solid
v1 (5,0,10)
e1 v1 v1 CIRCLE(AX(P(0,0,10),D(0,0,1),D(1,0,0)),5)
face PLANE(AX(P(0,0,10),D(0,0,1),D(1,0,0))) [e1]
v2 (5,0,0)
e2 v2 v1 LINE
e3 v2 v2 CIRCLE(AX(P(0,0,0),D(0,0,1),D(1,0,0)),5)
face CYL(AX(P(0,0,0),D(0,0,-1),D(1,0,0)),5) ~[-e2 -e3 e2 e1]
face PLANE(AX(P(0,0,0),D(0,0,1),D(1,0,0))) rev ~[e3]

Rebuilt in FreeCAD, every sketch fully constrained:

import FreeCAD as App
import Part
import Sketcher
Q = App.Units.Quantity

doc = App.newDocument("Part")
params = doc.addObject("Spreadsheet::Sheet", "Params")
for row, (alias, value) in enumerate([
    ("sketch1_diameter", "10 mm"),
    ("pad1_length", "10 mm"),
], start=1):
    params.set(f"A{row}", alias)
    params.set(f"B{row}", "=" + value)
    params.setAlias(f"B{row}", alias)

body = doc.addObject("PartDesign::Body", "Body")

# Sketch on XY plane
sketch1 = body.newObject("Sketcher::SketchObject", "Sketch")
sketch1.AttachmentSupport = (doc.getObject("XY_Plane"), [""])
sketch1.MapMode = "FlatFace"
sketch1.addGeometry(Part.Circle(App.Vector(0, 0, 0), App.Vector(0, 0, 1), 5), False)
sketch1.addConstraint([
    Sketcher.Constraint("Coincident", 0, 3, -1, 1),
    Sketcher.Constraint("Diameter", 0, Q("10 mm")),
])
sketch1.setExpression("Constraints[1]", "Params.sketch1_diameter")
pad1 = body.newObject("PartDesign::Pad", "Pad")
pad1.Profile = sketch1
pad1.setExpression("Length", "Params.pad1_length")

doc.recompute()
